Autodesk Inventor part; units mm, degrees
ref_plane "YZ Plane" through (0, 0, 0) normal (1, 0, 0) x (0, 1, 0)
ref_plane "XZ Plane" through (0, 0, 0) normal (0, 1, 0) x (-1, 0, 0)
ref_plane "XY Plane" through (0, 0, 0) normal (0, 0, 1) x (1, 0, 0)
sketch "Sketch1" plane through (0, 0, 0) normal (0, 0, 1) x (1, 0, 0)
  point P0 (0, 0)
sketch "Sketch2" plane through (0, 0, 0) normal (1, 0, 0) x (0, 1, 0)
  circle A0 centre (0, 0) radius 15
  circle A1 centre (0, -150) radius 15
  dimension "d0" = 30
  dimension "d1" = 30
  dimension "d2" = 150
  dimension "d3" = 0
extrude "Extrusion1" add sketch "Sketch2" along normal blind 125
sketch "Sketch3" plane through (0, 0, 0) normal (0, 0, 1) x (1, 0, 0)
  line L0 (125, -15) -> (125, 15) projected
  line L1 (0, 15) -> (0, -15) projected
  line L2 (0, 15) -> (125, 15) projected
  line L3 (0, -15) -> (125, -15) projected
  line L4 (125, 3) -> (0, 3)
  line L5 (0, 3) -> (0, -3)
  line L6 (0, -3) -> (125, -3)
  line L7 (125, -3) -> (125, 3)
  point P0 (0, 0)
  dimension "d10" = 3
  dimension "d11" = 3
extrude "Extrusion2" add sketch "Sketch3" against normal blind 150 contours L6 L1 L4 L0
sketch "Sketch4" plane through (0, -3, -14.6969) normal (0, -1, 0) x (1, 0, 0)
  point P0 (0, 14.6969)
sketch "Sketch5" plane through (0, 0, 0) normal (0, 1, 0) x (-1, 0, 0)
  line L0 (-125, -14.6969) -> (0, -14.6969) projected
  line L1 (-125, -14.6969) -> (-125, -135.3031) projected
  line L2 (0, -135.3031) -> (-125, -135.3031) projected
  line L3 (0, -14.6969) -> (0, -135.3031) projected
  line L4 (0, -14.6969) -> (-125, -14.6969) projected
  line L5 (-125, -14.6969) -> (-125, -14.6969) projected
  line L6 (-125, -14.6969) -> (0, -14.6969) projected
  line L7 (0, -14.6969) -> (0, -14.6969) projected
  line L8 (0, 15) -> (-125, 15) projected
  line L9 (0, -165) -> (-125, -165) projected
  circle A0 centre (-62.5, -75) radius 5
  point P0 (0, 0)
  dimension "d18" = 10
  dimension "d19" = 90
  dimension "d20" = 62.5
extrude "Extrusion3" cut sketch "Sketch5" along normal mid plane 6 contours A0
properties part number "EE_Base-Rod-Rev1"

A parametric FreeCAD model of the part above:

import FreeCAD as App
import Part
import Sketcher

doc = App.newDocument("Part")
body = doc.addObject("PartDesign::Body", "Body")
body.AllowCompound = True

# Sketch on YZ plane
sketch1 = doc.addObject("Sketcher::SketchObject", "Sketch")
body.addObject(sketch1)
sketch1.AttachmentSupport = (doc.YZ_Plane, [""])
sketch1.MapMode = "FlatFace"
sketch1.addGeometry(Part.Circle(App.Vector(0, 0, 0), App.Vector(0, 0, 1), 15), False)
sketch1.addGeometry(Part.Circle(App.Vector(0, -150, 0), App.Vector(0, 0, 1), 15), False)
sketch1.addConstraint(Sketcher.Constraint("Coincident", 0, 3, -1, 1))
sketch1.addConstraint(Sketcher.Constraint("Equal", 0, 1))
sketch1.addConstraint(Sketcher.Constraint("PointOnObject", 1, 3, -2))
sketch1.addConstraint(Sketcher.Constraint("Diameter", 0, 30.0))
sketch1.addConstraint(Sketcher.Constraint("DistanceY", 1, 3, -1, 1, 150.0))
pad1 = doc.addObject("PartDesign::Pad", "Pad")
body.addObject(pad1)
pad1.Profile = sketch1
pad1.Length = 125

# Sketch on XY plane
sketch2 = doc.addObject("Sketcher::SketchObject", "Sketch001")
body.addObject(sketch2)
sketch2.AttachmentSupport = (doc.XY_Plane, [""])
sketch2.MapMode = "FlatFace"
sketch2.addGeometry(Part.LineSegment(App.Vector(0, -3, 0), App.Vector(125, -3, 0)), False)
sketch2.addGeometry(Part.LineSegment(App.Vector(125, -3, 0), App.Vector(125, 3, 0)), False)
sketch2.addGeometry(Part.LineSegment(App.Vector(125, 3, 0), App.Vector(0, 3, 0)), False)
sketch2.addGeometry(Part.LineSegment(App.Vector(0, 3, 0), App.Vector(0, -3, 0)), False)
sketch2.addConstraint(Sketcher.Constraint("Coincident", 0, 2, 1, 1))
sketch2.addConstraint(Sketcher.Constraint("Coincident", 1, 2, 2, 1))
sketch2.addConstraint(Sketcher.Constraint("Coincident", 2, 2, 3, 1))
sketch2.addConstraint(Sketcher.Constraint("Coincident", 3, 2, 0, 1))
sketch2.addConstraint(Sketcher.Constraint("Horizontal", 0))
sketch2.addConstraint(Sketcher.Constraint("Vertical", 1))
sketch2.addConstraint(Sketcher.Constraint("Horizontal", 2))
sketch2.addConstraint(Sketcher.Constraint("Vertical", 3))
sketch2.addConstraint(Sketcher.Constraint("Symmetric", 2, 2, 3, 2, -1, 1))
sketch2.addConstraint(Sketcher.Constraint("DistanceY", 0, 2, -1, 1, 3.0))
sketch2.addConstraint(Sketcher.Constraint("DistanceX", 0, 1, 0, 2, 125.0))
pad2 = doc.addObject("PartDesign::Pad", "Pad001")
body.addObject(pad2)
pad2.Profile = sketch2
pad2.Length = 150
pad2.Reversed = True

# Sketch on XZ plane
sketch3 = doc.addObject("Sketcher::SketchObject", "Sketch002")
body.addObject(sketch3)
sketch3.AttachmentSupport = (doc.XZ_Plane, [""])
sketch3.MapMode = "FlatFace"
sketch3.addGeometry(Part.Circle(App.Vector(62, -75, 0), App.Vector(0, 0, 1), 5), False)
sketch3.addConstraint(Sketcher.Constraint("Diameter", 0, 10.0))
sketch3.addConstraint(Sketcher.Constraint("DistanceX", -1, 1, 0, 3, 62.5))
sketch3.addConstraint(Sketcher.Constraint("DistanceY", 0, 3, -1, 1, 75.0))
pocket1 = doc.addObject("PartDesign::Pocket", "Pocket")
body.addObject(pocket1)
pocket1.Profile = sketch3
pocket1.Length = 6
pocket1.Midplane = True

doc.recompute()
